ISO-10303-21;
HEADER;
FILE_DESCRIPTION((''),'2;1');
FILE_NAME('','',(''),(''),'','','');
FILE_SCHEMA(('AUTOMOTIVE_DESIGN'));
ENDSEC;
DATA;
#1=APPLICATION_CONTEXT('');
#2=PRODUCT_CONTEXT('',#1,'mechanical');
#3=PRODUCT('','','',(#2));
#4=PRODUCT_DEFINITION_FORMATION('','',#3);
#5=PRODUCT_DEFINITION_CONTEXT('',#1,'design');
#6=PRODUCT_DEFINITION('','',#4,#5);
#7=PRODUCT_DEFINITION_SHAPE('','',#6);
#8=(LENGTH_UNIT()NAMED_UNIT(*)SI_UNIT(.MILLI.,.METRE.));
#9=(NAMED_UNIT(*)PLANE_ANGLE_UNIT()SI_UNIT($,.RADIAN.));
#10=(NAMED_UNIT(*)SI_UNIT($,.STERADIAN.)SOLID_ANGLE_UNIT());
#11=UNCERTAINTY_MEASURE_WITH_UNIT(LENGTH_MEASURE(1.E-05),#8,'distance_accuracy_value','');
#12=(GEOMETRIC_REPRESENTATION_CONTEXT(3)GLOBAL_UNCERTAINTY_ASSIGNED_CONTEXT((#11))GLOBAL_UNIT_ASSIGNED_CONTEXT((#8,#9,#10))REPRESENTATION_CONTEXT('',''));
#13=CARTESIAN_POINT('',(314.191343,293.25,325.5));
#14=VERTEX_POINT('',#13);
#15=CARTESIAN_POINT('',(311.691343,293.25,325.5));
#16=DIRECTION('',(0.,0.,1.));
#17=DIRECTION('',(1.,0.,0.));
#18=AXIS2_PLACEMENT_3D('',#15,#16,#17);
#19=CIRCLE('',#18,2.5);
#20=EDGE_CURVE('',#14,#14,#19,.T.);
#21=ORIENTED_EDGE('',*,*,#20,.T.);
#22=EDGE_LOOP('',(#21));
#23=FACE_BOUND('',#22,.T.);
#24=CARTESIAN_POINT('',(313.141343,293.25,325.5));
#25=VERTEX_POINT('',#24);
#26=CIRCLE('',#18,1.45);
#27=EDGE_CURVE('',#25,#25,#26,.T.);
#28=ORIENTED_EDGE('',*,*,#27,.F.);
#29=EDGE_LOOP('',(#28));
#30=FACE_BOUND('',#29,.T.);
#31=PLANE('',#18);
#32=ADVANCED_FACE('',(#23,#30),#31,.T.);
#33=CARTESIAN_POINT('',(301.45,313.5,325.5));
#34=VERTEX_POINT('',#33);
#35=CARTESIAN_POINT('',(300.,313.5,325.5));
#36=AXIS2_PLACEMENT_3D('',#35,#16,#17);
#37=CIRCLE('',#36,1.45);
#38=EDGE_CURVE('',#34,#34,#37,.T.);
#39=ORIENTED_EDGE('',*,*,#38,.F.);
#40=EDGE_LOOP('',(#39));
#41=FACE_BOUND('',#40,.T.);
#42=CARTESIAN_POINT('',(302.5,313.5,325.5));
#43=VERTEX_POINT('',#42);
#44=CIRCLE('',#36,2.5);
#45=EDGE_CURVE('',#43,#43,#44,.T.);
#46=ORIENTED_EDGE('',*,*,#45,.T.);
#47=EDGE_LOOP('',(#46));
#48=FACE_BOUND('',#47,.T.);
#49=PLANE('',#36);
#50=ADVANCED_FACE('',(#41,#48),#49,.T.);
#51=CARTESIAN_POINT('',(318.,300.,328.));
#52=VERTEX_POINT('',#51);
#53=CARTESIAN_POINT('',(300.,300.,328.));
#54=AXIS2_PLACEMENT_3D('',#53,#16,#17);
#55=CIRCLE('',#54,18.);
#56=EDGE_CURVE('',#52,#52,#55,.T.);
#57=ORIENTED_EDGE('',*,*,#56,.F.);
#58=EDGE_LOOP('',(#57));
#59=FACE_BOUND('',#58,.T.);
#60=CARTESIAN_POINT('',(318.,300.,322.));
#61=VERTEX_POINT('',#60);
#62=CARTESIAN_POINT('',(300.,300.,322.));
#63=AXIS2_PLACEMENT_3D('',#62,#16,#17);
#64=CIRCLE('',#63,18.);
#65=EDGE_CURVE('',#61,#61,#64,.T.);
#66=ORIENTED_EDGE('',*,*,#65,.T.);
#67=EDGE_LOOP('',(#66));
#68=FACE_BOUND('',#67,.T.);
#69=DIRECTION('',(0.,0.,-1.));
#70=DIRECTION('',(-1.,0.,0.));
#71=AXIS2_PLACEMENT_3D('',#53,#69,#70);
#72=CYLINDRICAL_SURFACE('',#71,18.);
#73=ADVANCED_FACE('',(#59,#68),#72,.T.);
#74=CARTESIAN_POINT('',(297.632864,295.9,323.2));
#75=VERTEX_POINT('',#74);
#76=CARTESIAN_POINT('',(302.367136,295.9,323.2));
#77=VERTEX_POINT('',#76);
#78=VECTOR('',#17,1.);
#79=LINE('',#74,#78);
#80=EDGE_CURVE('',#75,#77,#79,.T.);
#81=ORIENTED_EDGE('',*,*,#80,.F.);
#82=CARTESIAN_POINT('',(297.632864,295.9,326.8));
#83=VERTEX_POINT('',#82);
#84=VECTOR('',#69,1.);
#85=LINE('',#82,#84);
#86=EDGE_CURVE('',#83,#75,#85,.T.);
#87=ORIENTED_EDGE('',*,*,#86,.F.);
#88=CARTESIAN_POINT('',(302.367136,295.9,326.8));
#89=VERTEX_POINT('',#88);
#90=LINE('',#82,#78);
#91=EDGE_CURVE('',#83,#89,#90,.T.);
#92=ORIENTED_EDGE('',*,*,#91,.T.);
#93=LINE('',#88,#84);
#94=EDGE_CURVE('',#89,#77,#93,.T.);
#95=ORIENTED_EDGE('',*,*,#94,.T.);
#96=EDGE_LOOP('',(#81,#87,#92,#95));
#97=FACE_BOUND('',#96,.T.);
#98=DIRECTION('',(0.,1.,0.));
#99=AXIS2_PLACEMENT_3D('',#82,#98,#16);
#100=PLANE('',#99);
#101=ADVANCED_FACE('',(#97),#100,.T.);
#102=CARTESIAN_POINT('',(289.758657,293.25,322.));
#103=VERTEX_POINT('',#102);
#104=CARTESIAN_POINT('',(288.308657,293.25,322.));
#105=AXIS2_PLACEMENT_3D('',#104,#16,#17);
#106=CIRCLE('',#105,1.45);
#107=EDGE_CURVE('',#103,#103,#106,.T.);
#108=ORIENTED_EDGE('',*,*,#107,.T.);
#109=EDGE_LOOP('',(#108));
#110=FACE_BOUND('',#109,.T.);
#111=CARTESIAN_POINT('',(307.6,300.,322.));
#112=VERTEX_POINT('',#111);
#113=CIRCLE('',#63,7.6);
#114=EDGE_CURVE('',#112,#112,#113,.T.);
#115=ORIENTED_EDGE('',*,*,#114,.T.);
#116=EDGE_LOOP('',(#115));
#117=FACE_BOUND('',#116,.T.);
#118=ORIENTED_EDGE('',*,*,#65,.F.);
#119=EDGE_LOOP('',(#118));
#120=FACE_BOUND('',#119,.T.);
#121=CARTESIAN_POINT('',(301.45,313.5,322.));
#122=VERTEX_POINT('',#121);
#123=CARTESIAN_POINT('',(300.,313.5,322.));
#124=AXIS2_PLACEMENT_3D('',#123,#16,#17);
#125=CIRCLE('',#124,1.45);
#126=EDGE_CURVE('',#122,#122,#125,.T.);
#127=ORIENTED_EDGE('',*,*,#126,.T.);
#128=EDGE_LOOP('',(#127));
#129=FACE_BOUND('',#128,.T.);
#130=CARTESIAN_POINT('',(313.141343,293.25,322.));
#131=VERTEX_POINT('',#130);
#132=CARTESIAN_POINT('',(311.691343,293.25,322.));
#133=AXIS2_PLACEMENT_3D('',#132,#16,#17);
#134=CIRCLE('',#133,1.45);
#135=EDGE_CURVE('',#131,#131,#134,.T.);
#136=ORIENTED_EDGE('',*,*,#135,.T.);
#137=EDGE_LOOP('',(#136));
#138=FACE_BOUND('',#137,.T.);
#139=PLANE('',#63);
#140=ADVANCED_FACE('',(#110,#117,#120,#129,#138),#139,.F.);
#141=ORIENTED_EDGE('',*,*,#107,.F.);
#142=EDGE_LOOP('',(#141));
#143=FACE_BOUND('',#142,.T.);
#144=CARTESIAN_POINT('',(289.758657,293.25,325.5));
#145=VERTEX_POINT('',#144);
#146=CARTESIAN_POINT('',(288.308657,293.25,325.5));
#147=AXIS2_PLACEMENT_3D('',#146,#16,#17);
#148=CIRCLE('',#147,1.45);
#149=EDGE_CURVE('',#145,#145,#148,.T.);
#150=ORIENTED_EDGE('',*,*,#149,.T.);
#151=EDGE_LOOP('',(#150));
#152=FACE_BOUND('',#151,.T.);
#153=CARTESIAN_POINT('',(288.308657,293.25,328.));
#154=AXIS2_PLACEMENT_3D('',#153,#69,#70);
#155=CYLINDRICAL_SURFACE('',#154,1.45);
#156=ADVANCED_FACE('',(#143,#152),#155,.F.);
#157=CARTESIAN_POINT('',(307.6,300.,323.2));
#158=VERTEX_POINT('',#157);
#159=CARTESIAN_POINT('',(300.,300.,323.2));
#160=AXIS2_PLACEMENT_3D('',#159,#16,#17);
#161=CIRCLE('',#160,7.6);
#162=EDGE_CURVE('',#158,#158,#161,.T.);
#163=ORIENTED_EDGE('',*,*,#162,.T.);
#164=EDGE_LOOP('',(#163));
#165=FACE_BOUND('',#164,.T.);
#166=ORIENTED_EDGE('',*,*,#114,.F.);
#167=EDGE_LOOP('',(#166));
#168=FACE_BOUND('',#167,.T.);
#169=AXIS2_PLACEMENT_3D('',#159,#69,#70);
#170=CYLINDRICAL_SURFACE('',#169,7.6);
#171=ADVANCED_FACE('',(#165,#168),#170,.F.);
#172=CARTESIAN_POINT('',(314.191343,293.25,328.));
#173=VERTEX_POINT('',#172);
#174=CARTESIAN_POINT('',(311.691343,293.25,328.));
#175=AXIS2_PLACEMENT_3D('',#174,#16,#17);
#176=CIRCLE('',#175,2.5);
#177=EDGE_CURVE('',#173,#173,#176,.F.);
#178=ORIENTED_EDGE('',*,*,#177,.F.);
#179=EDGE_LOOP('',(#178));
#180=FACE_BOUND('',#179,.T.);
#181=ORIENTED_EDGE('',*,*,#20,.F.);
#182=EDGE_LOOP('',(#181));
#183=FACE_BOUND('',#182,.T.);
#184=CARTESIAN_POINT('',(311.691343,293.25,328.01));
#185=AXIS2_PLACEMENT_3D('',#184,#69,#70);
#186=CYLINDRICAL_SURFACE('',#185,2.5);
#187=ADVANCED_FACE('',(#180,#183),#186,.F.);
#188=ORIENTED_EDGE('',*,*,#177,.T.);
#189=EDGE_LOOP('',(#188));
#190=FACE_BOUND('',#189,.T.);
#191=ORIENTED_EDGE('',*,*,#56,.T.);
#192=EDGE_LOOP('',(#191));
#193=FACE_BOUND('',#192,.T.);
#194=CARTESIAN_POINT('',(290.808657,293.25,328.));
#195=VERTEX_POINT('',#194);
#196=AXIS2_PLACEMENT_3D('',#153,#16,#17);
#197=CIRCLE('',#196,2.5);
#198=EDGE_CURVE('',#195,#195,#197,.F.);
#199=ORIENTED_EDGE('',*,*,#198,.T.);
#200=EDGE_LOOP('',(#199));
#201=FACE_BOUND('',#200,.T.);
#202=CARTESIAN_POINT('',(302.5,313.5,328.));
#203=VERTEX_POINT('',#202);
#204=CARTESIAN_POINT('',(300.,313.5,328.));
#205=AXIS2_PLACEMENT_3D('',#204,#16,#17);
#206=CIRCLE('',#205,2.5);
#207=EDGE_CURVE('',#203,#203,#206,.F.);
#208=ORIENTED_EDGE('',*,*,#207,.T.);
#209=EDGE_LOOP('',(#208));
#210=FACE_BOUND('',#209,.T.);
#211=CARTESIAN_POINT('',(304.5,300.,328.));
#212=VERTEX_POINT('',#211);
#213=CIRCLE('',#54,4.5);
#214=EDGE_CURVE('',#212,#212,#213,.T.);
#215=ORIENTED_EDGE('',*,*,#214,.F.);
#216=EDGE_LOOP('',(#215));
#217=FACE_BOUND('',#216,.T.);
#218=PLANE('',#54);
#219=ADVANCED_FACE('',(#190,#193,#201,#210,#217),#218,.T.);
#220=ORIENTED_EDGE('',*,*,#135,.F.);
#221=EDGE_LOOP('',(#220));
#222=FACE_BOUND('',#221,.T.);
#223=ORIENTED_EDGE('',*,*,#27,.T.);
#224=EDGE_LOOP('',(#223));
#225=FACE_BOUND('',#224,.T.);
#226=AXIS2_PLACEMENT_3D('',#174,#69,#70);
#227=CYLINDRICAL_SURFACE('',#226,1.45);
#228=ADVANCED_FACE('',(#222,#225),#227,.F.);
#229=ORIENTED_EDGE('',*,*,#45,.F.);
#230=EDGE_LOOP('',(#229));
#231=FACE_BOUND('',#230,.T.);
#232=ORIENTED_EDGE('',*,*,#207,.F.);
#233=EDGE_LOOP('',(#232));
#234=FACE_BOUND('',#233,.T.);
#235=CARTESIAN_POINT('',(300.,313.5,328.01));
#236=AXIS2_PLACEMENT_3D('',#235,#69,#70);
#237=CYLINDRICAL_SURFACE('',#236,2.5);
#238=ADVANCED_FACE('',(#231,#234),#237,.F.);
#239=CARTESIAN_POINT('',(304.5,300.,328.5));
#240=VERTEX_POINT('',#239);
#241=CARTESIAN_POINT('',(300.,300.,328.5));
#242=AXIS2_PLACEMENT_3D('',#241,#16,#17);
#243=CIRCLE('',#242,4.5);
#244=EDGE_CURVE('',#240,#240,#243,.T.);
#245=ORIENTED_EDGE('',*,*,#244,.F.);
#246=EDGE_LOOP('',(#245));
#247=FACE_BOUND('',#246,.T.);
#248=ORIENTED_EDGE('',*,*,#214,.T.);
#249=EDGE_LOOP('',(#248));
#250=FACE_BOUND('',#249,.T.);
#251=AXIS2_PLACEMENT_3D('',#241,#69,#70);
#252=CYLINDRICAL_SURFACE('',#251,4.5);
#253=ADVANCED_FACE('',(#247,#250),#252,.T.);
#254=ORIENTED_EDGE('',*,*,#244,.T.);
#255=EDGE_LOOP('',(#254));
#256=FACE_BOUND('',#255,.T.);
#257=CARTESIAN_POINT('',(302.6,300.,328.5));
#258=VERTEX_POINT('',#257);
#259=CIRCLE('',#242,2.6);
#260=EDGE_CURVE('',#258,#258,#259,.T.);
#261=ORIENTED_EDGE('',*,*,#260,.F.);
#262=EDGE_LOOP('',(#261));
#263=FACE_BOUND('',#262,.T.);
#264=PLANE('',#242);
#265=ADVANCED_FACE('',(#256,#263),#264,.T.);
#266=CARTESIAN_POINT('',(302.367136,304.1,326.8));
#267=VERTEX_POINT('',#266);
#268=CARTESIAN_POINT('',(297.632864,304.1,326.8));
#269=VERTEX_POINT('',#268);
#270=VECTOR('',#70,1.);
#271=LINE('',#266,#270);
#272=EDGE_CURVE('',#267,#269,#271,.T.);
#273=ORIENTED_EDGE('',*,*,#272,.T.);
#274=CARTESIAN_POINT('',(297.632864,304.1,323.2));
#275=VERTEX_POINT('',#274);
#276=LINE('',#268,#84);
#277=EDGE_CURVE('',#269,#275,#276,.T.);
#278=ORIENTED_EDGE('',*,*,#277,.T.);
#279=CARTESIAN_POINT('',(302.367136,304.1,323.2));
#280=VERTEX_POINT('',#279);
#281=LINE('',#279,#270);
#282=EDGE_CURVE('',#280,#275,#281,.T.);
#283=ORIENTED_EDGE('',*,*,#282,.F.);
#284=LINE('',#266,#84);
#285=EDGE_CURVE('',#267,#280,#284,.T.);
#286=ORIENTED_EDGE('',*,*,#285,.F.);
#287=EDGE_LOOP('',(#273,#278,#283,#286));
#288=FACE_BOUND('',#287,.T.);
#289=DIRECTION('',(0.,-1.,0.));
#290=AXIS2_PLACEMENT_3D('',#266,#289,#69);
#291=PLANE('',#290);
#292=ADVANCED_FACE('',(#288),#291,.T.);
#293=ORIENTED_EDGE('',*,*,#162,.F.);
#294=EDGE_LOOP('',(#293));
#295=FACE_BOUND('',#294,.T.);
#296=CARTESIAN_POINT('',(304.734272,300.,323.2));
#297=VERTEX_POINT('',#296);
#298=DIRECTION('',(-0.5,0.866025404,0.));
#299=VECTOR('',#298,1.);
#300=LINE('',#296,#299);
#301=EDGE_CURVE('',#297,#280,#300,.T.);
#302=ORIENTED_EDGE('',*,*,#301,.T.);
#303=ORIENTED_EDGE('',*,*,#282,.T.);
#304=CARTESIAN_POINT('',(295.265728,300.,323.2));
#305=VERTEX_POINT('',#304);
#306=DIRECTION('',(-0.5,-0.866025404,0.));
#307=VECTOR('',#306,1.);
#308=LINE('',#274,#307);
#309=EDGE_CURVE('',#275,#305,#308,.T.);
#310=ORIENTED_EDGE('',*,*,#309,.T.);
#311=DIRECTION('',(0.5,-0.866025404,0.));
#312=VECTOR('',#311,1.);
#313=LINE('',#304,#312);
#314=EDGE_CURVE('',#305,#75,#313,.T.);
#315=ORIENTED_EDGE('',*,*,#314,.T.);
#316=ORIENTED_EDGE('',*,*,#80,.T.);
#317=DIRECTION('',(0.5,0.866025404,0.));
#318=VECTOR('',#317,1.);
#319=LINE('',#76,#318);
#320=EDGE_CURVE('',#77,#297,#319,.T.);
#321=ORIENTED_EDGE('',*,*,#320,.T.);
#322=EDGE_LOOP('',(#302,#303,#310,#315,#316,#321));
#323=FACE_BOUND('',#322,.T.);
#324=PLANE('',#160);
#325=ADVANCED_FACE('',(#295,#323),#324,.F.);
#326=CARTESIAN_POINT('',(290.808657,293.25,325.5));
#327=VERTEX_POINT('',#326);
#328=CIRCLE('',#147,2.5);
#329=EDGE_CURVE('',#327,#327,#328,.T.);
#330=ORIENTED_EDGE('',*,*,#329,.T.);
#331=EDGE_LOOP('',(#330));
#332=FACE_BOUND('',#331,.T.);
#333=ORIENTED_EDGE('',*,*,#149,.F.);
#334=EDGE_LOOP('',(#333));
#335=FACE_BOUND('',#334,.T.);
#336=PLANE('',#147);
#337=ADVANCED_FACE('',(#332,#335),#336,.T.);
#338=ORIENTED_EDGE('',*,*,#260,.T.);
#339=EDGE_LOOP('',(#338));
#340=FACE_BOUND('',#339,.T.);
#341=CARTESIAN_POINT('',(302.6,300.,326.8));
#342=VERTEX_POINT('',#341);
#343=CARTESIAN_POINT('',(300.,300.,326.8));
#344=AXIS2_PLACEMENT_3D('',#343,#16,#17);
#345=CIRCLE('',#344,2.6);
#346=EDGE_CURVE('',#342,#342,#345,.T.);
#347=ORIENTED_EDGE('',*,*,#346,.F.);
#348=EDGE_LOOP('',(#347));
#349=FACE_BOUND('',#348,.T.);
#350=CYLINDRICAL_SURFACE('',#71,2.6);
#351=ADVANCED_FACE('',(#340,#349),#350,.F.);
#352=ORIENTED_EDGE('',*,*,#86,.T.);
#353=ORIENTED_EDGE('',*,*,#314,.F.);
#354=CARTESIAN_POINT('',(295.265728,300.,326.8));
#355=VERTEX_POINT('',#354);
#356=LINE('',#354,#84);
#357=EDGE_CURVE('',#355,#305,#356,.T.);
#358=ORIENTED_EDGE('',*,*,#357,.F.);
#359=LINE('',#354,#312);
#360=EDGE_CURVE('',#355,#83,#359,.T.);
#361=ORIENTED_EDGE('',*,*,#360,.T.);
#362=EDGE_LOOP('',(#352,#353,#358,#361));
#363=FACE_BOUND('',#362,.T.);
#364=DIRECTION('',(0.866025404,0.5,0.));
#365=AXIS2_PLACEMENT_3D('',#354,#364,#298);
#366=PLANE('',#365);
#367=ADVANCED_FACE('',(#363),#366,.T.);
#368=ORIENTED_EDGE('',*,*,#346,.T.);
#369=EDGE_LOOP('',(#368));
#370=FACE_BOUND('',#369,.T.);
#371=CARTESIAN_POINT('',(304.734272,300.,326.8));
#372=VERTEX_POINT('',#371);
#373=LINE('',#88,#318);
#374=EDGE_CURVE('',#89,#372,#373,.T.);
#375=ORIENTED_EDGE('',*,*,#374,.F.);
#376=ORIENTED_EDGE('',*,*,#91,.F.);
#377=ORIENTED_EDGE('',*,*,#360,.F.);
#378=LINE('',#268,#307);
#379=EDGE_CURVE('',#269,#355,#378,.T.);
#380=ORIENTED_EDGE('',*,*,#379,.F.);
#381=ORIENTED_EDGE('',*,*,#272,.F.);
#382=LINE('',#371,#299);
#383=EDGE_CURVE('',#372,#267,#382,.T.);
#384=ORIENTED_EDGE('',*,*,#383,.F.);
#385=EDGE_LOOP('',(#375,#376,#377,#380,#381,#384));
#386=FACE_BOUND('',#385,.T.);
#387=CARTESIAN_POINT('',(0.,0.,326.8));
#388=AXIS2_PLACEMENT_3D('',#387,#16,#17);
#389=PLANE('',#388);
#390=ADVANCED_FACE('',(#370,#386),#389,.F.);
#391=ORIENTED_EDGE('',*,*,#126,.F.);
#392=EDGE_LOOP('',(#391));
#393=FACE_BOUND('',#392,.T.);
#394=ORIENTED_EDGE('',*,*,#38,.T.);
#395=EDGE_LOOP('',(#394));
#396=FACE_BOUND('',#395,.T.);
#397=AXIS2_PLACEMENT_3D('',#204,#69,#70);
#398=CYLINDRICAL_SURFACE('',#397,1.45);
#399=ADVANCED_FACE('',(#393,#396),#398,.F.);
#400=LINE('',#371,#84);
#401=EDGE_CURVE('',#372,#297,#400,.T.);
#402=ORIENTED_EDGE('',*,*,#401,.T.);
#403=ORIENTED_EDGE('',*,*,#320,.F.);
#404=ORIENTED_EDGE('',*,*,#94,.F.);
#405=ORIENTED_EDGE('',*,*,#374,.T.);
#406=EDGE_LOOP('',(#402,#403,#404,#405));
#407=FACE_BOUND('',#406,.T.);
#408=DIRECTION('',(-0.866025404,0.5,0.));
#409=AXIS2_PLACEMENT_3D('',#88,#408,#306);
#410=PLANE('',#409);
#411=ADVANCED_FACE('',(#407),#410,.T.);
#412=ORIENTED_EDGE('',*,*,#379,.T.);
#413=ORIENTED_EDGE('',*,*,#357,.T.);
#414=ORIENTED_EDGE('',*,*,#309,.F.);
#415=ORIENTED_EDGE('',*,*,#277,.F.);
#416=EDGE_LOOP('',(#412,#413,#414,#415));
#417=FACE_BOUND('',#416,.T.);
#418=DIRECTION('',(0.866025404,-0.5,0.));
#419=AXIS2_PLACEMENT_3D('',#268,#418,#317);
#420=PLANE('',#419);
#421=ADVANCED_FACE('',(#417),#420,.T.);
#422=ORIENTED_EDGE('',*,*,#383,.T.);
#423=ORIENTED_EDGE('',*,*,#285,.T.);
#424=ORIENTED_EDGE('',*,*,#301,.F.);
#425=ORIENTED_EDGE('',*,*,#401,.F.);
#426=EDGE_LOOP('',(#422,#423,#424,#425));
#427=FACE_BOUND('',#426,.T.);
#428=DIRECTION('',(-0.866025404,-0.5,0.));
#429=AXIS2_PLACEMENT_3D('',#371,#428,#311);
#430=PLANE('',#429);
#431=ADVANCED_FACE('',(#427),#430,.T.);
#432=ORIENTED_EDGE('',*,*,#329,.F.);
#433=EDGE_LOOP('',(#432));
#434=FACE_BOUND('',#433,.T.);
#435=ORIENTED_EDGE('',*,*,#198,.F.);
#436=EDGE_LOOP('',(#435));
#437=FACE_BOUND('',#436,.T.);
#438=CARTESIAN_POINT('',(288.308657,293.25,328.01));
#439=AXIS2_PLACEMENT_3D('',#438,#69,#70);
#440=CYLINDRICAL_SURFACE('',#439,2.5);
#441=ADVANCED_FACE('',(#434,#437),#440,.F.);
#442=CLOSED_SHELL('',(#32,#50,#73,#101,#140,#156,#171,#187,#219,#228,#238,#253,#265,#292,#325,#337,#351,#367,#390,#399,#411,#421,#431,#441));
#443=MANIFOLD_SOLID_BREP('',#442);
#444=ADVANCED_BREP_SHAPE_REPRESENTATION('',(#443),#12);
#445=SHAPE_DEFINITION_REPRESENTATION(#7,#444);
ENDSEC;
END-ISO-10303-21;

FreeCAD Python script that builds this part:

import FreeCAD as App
import Part
import Sketcher
from FreeCAD import Vector
Q = App.Units.Quantity


def add_polygon(sketch, points):
    """Adds a closed chain of lines whose ends are joined by coincident constraints."""
    first, n = sketch.GeometryCount, len(points)
    for a, b in zip(points, points[1:] + points[:1]):
        sketch.addGeometry(Part.LineSegment(App.Vector(*a, 0), App.Vector(*b, 0)), False)
    for i in range(n):
        sketch.addConstraint(Sketcher.Constraint("Coincident", first + i, 2, first + (i + 1) % n, 1))

doc = App.newDocument("Part")
body = doc.addObject("PartDesign::Body", "Body")

# Sketch on XY plane
sketch1 = doc.addObject("Sketcher::SketchObject", "Sketch")
body.addObject(sketch1)
sketch1.AttachmentSupport = (doc.XY_Plane, [""])
sketch1.MapMode = "FlatFace"
sketch1.AttachmentOffset = App.Placement(Vector(0, 0, 322), App.Rotation())
sketch1.addGeometry([
    Part.Circle(Vector(300, 300, 0), Vector(0, 0, 1), 18),  # 0
    Part.Circle(Vector(288.3, 293.2, 0), Vector(0, 0, 1), 1.4),  # 1
    Part.Circle(Vector(311.7, 293.2, 0), Vector(0, 0, 1), 1.4),  # 2
    Part.Circle(Vector(300, 300, 0), Vector(0, 0, 1), 2.6),  # 3
    Part.Circle(Vector(300, 313.5, 0), Vector(0, 0, 1), 1.4),  # 4
], False)
sketch1.addConstraint([
    Sketcher.Constraint("Coincident", 3, 3, 0, 3),
    Sketcher.Constraint("Equal", 1, 2),
    Sketcher.Constraint("Equal", 2, 4),
    Sketcher.Constraint("Horizontal", 1, 3, 2, 3),
    Sketcher.Constraint("Vertical", 3, 3, 4, 3),
    Sketcher.Constraint("Diameter", 0, 36.0),
    Sketcher.Constraint("Diameter", 1, 2.9),
    Sketcher.Constraint("Diameter", 3, 5.2),
    Sketcher.Constraint("DistanceX", -1, 1, 0, 3, 300.0),
    Sketcher.Constraint("DistanceY", -1, 1, 0, 3, 300.0),
    Sketcher.Constraint("DistanceY", -1, 1, 4, 3, 313.5),
    Sketcher.Constraint("DistanceY", -1, 1, 1, 3, 293.25),
    Sketcher.Constraint("DistanceX", -1, 1, 1, 3, 288.308657),
    Sketcher.Constraint("DistanceX", -1, 1, 2, 3, 311.691343),
])
pad1 = doc.addObject("PartDesign::Pad", "Pad")
body.addObject(pad1)
pad1.Profile = sketch1
pad1.Length = 6

# Sketch on XY plane
sketch2 = doc.addObject("Sketcher::SketchObject", "Sketch001")
body.addObject(sketch2)
sketch2.AttachmentSupport = (doc.XY_Plane, [""])
sketch2.MapMode = "FlatFace"
sketch2.AttachmentOffset = App.Placement(Vector(0, 0, 325.5), App.Rotation())
sketch2.addGeometry([
    Part.Circle(Vector(300, 313.5, 0), Vector(0, 0, 1), 2.5),
    Part.Circle(Vector(288.3, 293.2, 0), Vector(0, 0, 1), 2.5),
    Part.Circle(Vector(311.7, 293.2, 0), Vector(0, 0, 1), 2.5),
], False)
sketch2.addConstraint([
    Sketcher.Constraint("Equal", 0, 1),
    Sketcher.Constraint("Equal", 1, 2),
    Sketcher.Constraint("Horizontal", 1, 3, 2, 3),
    Sketcher.Constraint("Diameter", 0, 5.0),
    Sketcher.Constraint("DistanceX", -1, 1, 0, 3, 300.0),
    Sketcher.Constraint("DistanceY", -1, 1, 0, 3, 313.5),
    Sketcher.Constraint("DistanceY", -1, 1, 1, 3, 293.25),
    Sketcher.Constraint("DistanceX", -1, 1, 1, 3, 288.308657),
    Sketcher.Constraint("DistanceX", -1, 1, 2, 3, 311.691343),
])
pocket1 = doc.addObject("PartDesign::Pocket", "Pocket")
body.addObject(pocket1)
pocket1.Profile = sketch2
pocket1.Length = 2.51
pocket1.Reversed = True

# Sketch on XY plane
sketch3 = doc.addObject("Sketcher::SketchObject", "Sketch002")
body.addObject(sketch3)
sketch3.AttachmentSupport = (doc.XY_Plane, [""])
sketch3.MapMode = "FlatFace"
sketch3.AttachmentOffset = App.Placement(Vector(0, 0, 322), App.Rotation())
sketch3.addGeometry(Part.Circle(Vector(300, 300, 0), Vector(0, 0, 1), 8), False)
sketch3.addConstraint([
    Sketcher.Constraint("Diameter", 0, 15.2),
    Sketcher.Constraint("DistanceX", -1, 1, 0, 3, 300.0),
    Sketcher.Constraint("DistanceY", -1, 1, 0, 3, 300.0),
])
pocket2 = doc.addObject("PartDesign::Pocket", "Pocket001")
body.addObject(pocket2)
pocket2.Profile = sketch3
pocket2.Length = 1.2
pocket2.Reversed = True

# Sketch on XY plane
sketch4 = doc.addObject("Sketcher::SketchObject", "Sketch003")
body.addObject(sketch4)
sketch4.AttachmentSupport = (doc.XY_Plane, [""])
sketch4.MapMode = "FlatFace"
sketch4.AttachmentOffset = App.Placement(Vector(0, 0, 323.2), App.Rotation())
add_polygon(sketch4, [(304.7, 300), (302.4, 304.1), (297.6, 304.1), (295.3, 300), (297.6, 295.9), (302.4, 295.9)])  # lines 0-5
sketch4.addConstraint([
    Sketcher.Constraint("Horizontal", 1),
    Sketcher.Constraint("Horizontal", 4),
    Sketcher.Constraint("Parallel", 0, 3),
    Sketcher.Constraint("Parallel", 2, 5),
    Sketcher.Constraint("Horizontal", 2, 2, 5, 2),
    Sketcher.Constraint("Vertical", 1, 2, 3, 2),
    Sketcher.Constraint("Vertical", 0, 2, 4, 2),
    Sketcher.Constraint("Angle", 0, Q("120 deg")),
    Sketcher.Constraint("DistanceY", -1, 1, 2, 2, 300.0),
    Sketcher.Constraint("DistanceY", -1, 1, 0, 2, 304.1),
    Sketcher.Constraint("DistanceX", 1, 2, 1, 1, 4.734272),
    Sketcher.Constraint("DistanceX", -1, 1, 0, 2, 302.367136),
])
pocket3 = doc.addObject("PartDesign::Pocket", "Pocket002")
body.addObject(pocket3)
pocket3.Profile = sketch4
pocket3.Length = 3.6
pocket3.Reversed = True

# Sketch on XY plane
sketch5 = doc.addObject("Sketcher::SketchObject", "Sketch004")
body.addObject(sketch5)
sketch5.AttachmentSupport = (doc.XY_Plane, [""])
sketch5.MapMode = "FlatFace"
sketch5.AttachmentOffset = App.Placement(Vector(0, 0, 328), App.Rotation())
sketch5.addGeometry([
    Part.Circle(Vector(300, 300, 0), Vector(0, 0, 1), 4.5),
    Part.Circle(Vector(300, 300, 0), Vector(0, 0, 1), 2.6),
], False)
sketch5.addConstraint([
    Sketcher.Constraint("Coincident", 1, 3, 0, 3),
    Sketcher.Constraint("Diameter", 0, 9.0),
    Sketcher.Constraint("Diameter", 1, 5.2),
    Sketcher.Constraint("DistanceX", -1, 1, 0, 3, 300.0),
    Sketcher.Constraint("DistanceY", -1, 1, 0, 3, 300.0),
])
pad2 = doc.addObject("PartDesign::Pad", "Pad001")
body.addObject(pad2)
pad2.Profile = sketch5
pad2.Length = 0.5

doc.recompute()
